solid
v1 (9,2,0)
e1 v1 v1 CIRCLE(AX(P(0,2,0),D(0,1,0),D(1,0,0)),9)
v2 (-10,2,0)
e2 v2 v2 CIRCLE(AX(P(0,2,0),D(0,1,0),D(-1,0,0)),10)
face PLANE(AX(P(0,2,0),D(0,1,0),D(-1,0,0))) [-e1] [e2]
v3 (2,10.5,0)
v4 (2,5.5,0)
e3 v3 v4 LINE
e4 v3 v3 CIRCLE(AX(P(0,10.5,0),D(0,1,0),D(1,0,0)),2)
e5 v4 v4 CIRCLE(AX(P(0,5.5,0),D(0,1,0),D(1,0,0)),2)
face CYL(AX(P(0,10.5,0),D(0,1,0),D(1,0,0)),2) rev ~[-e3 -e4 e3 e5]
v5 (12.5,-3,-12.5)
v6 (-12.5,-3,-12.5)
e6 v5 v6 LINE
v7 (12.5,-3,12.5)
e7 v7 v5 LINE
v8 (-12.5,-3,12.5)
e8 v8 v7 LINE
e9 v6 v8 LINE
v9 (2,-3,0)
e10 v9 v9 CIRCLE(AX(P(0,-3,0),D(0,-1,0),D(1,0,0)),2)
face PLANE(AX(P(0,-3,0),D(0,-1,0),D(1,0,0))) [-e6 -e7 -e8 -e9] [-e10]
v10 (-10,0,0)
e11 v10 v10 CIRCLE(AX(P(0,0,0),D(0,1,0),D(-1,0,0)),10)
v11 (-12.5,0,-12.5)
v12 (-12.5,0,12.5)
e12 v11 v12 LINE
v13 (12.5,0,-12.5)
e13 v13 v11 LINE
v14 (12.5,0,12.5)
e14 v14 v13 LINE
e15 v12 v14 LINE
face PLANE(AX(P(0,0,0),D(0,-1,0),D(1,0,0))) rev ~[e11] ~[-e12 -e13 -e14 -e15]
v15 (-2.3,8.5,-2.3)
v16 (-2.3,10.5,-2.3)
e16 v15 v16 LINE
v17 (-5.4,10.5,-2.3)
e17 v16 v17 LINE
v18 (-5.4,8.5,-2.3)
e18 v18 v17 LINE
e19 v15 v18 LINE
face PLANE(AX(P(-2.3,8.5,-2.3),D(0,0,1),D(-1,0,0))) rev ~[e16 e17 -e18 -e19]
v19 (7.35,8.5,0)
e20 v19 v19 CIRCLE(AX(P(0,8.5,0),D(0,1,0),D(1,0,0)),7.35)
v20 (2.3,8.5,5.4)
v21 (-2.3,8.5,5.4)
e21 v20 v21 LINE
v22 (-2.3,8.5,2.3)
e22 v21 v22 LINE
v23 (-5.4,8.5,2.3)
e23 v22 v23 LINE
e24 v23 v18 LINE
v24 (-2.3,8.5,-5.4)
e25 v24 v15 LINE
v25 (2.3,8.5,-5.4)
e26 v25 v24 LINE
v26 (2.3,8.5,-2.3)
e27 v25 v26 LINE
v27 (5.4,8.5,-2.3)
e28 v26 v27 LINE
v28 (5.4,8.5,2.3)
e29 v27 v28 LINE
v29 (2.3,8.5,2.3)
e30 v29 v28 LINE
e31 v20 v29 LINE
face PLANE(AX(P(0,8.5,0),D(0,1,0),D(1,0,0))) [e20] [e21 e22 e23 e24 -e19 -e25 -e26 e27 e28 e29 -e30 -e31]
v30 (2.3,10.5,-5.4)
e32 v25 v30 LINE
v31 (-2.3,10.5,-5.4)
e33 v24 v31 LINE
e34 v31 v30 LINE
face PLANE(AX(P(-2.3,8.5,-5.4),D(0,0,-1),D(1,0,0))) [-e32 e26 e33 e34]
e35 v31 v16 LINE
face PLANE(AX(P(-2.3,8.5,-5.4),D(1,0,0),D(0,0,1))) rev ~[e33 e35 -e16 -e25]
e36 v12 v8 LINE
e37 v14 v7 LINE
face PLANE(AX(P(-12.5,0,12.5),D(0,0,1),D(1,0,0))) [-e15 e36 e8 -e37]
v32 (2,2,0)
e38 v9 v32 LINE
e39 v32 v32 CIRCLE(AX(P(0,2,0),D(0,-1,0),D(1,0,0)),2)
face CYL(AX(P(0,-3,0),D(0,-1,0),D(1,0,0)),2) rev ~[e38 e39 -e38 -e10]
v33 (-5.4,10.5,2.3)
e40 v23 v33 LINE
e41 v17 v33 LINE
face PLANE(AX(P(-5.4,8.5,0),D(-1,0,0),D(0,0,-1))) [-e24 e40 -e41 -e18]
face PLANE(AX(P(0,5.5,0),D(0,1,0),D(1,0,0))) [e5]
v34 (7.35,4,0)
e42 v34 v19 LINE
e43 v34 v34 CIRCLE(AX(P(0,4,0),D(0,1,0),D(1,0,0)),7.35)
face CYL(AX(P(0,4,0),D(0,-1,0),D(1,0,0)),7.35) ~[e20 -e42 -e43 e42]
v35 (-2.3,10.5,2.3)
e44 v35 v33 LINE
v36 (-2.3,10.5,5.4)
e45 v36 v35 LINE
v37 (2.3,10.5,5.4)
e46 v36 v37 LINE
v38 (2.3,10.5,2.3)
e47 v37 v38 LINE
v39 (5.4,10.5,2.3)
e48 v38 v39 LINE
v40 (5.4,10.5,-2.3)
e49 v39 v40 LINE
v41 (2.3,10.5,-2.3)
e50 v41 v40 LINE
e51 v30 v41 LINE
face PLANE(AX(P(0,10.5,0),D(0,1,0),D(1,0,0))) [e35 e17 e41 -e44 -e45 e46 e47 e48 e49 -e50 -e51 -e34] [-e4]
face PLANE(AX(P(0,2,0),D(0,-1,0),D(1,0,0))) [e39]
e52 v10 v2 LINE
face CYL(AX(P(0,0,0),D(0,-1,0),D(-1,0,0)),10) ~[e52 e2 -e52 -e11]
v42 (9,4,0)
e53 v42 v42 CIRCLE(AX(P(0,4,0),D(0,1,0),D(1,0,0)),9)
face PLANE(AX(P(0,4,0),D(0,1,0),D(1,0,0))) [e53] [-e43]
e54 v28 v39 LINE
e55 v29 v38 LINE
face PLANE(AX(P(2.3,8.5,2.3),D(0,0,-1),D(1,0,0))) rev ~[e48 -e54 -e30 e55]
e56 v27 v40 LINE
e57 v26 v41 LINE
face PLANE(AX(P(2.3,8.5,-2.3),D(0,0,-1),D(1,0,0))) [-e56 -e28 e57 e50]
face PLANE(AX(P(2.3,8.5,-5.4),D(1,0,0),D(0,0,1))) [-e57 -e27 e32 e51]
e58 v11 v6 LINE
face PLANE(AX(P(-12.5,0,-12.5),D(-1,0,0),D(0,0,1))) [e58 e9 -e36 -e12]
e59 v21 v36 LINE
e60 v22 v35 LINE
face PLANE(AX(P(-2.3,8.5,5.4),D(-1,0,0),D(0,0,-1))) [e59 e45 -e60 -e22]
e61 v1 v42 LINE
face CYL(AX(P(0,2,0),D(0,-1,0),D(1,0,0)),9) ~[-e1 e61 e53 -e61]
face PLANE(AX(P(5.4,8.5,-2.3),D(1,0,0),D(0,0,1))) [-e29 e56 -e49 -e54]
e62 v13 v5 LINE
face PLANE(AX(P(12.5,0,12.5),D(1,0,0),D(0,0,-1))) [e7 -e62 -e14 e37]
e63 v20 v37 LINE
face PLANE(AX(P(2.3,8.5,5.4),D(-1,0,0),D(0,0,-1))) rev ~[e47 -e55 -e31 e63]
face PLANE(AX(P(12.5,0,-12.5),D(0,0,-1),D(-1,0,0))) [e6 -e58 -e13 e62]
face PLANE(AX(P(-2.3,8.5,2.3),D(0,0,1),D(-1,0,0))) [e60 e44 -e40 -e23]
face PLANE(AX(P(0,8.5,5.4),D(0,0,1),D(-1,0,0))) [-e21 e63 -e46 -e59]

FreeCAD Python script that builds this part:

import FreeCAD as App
import Part
import Sketcher
from FreeCAD import Vector
Q = App.Units.Quantity

doc = App.newDocument("Part")
params = doc.addObject("Spreadsheet::Sheet", "Params")
for row, (alias, value) in enumerate([
    ("sketch1_diameter", "20 mm"),
    ("pad1_length", "2 mm"),
    ("sketch2_diameter", "18 mm"),
    ("pad2_length", "2 mm"),
    ("sketch3_diameter", "14.7 mm"),
    ("pad3_length", "4.5 mm"),
    ("sketch4_width", "3.1 mm"),
    ("sketch4_width2", "4.6 mm"),
    ("pad4_length", "2 mm"),
    ("sketch5_diameter", "4 mm"),
    ("pocket1_length", "5 mm"),
    ("sketch6_width", "25 mm"),
    ("pad5_length", "3 mm"),
    ("sketch7_diameter", "4 mm"),
    ("pocket2_length", "5 mm"),
], start=1):
    params.set(f"A{row}", alias)
    params.set(f"B{row}", "=" + value)
    params.setAlias(f"B{row}", alias)

body = doc.addObject("PartDesign::Body", "Body")

# Sketch on XZ plane
sketch1 = body.newObject("Sketcher::SketchObject", "Sketch")
sketch1.AttachmentSupport = (doc.getObject("XZ_Plane"), [""])
sketch1.MapMode = "FlatFace"
sketch1.addGeometry(Part.Circle(Vector(0, 0, 0), Vector(0, 0, 1), 10), False)
sketch1.addConstraint(Sketcher.Constraint("Coincident", 0, 3, -1, 1))
sketch1.addConstraint(Sketcher.Constraint("Diameter", 0, Q("20 mm")))
sketch1.setExpression("Constraints[1]", "Params.sketch1_diameter")
pad1 = body.newObject("PartDesign::Pad", "Pad")
pad1.Profile = sketch1
pad1.setExpression("Length", "Params.pad1_length")
pad1.Reversed = True

# Sketch on XZ plane
sketch2 = body.newObject("Sketcher::SketchObject", "Sketch001")
sketch2.AttachmentSupport = (doc.getObject("XZ_Plane"), [""])
sketch2.MapMode = "FlatFace"
sketch2.AttachmentOffset = App.Placement(Vector(0, 0, -2), App.Rotation())
sketch2.addGeometry(Part.Circle(Vector(0, 0, 0), Vector(0, 0, 1), 9), False)
sketch2.addConstraint(Sketcher.Constraint("Coincident", 0, 3, -1, 1))
sketch2.addConstraint(Sketcher.Constraint("Diameter", 0, Q("18 mm")))
sketch2.setExpression("Constraints[1]", "Params.sketch2_diameter")
pad2 = body.newObject("PartDesign::Pad", "Pad001")
pad2.Profile = sketch2
pad2.setExpression("Length", "Params.pad2_length")
pad2.Reversed = True

# Sketch on XZ plane
sketch3 = body.newObject("Sketcher::SketchObject", "Sketch002")
sketch3.AttachmentSupport = (doc.getObject("XZ_Plane"), [""])
sketch3.MapMode = "FlatFace"
sketch3.AttachmentOffset = App.Placement(Vector(0, 0, -4), App.Rotation())
sketch3.addGeometry(Part.Circle(Vector(0, 0, 0), Vector(0, 0, 1), 7), False)
sketch3.addConstraint(Sketcher.Constraint("Coincident", 0, 3, -1, 1))
sketch3.addConstraint(Sketcher.Constraint("Diameter", 0, Q("14.7 mm")))
sketch3.setExpression("Constraints[1]", "Params.sketch3_diameter")
pad3 = body.newObject("PartDesign::Pad", "Pad002")
pad3.Profile = sketch3
pad3.setExpression("Length", "Params.pad3_length")
pad3.Reversed = True

# Sketch on XZ plane
sketch4 = body.newObject("Sketcher::SketchObject", "Sketch003")
sketch4.AttachmentSupport = (doc.getObject("XZ_Plane"), [""])
sketch4.MapMode = "FlatFace"
sketch4.AttachmentOffset = App.Placement(Vector(0, 0, -8.5), App.Rotation())
sketch4.addGeometry(Part.LineSegment(Vector(-2.3, -5.4, 0), Vector(-2.3, -2.3, 0)), False)
sketch4.addGeometry(Part.LineSegment(Vector(-2.3, -2.3, 0), Vector(-5.4, -2.3, 0)), False)
sketch4.addGeometry(Part.LineSegment(Vector(-5.4, -2.3, 0), Vector(-5.4, 2.3, 0)), False)
sketch4.addGeometry(Part.LineSegment(Vector(-5.4, 2.3, 0), Vector(-2.3, 2.3, 0)), False)
sketch4.addGeometry(Part.LineSegment(Vector(-2.3, 2.3, 0), Vector(-2.3, 5.4, 0)), False)
sketch4.addGeometry(Part.LineSegment(Vector(-2.3, 5.4, 0), Vector(2.3, 5.4, 0)), False)
sketch4.addGeometry(Part.LineSegment(Vector(2.3, 5.4, 0), Vector(2.3, 2.3, 0)), False)
sketch4.addGeometry(Part.LineSegment(Vector(2.3, 2.3, 0), Vector(5.4, 2.3, 0)), False)
sketch4.addGeometry(Part.LineSegment(Vector(5.4, 2.3, 0), Vector(5.4, -2.3, 0)), False)
sketch4.addGeometry(Part.LineSegment(Vector(5.4, -2.3, 0), Vector(2.3, -2.3, 0)), False)
sketch4.addGeometry(Part.LineSegment(Vector(2.3, -2.3, 0), Vector(2.3, -5.4, 0)), False)
sketch4.addGeometry(Part.LineSegment(Vector(2.3, -5.4, 0), Vector(-2.3, -5.4, 0)), False)
sketch4.addConstraint(Sketcher.Constraint("Coincident", 0, 2, 1, 1))
sketch4.addConstraint(Sketcher.Constraint("Coincident", 1, 2, 2, 1))
sketch4.addConstraint(Sketcher.Constraint("Coincident", 2, 2, 3, 1))
sketch4.addConstraint(Sketcher.Constraint("Coincident", 3, 2, 4, 1))
sketch4.addConstraint(Sketcher.Constraint("Coincident", 4, 2, 5, 1))
sketch4.addConstraint(Sketcher.Constraint("Coincident", 5, 2, 6, 1))
sketch4.addConstraint(Sketcher.Constraint("Coincident", 6, 2, 7, 1))
sketch4.addConstraint(Sketcher.Constraint("Coincident", 7, 2, 8, 1))
sketch4.addConstraint(Sketcher.Constraint("Coincident", 8, 2, 9, 1))
sketch4.addConstraint(Sketcher.Constraint("Coincident", 9, 2, 10, 1))
sketch4.addConstraint(Sketcher.Constraint("Coincident", 10, 2, 11, 1))
sketch4.addConstraint(Sketcher.Constraint("Coincident", 11, 2, 0, 1))
sketch4.addConstraint(Sketcher.Constraint("Vertical", 0))
sketch4.addConstraint(Sketcher.Constraint("Horizontal", 1))
sketch4.addConstraint(Sketcher.Constraint("Vertical", 2))
sketch4.addConstraint(Sketcher.Constraint("Horizontal", 3))
sketch4.addConstraint(Sketcher.Constraint("Vertical", 4))
sketch4.addConstraint(Sketcher.Constraint("Horizontal", 5))
sketch4.addConstraint(Sketcher.Constraint("Vertical", 6))
sketch4.addConstraint(Sketcher.Constraint("Horizontal", 7))
sketch4.addConstraint(Sketcher.Constraint("Vertical", 8))
sketch4.addConstraint(Sketcher.Constraint("Horizontal", 9))
sketch4.addConstraint(Sketcher.Constraint("Vertical", 10))
sketch4.addConstraint(Sketcher.Constraint("Horizontal", 11))
sketch4.addConstraint(Sketcher.Constraint("Symmetric", 0, 2, 6, 2, -1, 1))
sketch4.addConstraint(Sketcher.Constraint("Symmetric", 2, 2, 8, 2, -1, 1))
sketch4.addConstraint(Sketcher.Constraint("Symmetric", 4, 2, 10, 2, -1, 1))
sketch4.addConstraint(Sketcher.Constraint("Symmetric", 3, 2, 6, 2, -2))
sketch4.addConstraint(Sketcher.Constraint("Equal", 9, 0))
sketch4.addConstraint(Sketcher.Constraint("Equal", 11, 2))
sketch4.addConstraint(Sketcher.Constraint("DistanceX", 1, 2, 1, 1, Q("3.1 mm")))
sketch4.addConstraint(Sketcher.Constraint("DistanceX", 5, 1, 5, 2, Q("4.6 mm")))
sketch4.setExpression("Constraints[30]", "Params.sketch4_width")
sketch4.setExpression("Constraints[31]", "Params.sketch4_width2")
pad4 = body.newObject("PartDesign::Pad", "Pad003")
pad4.Profile = sketch4
pad4.setExpression("Length", "Params.pad4_length")
pad4.Reversed = True

# Sketch on XZ plane
sketch5 = body.newObject("Sketcher::SketchObject", "Sketch004")
sketch5.AttachmentSupport = (doc.getObject("XZ_Plane"), [""])
sketch5.MapMode = "FlatFace"
sketch5.AttachmentOffset = App.Placement(Vector(0, 0, -10.5), App.Rotation())
sketch5.addGeometry(Part.Circle(Vector(0, 0, 0), Vector(0, 0, 1), 2), False)
sketch5.addConstraint(Sketcher.Constraint("Coincident", 0, 3, -1, 1))
sketch5.addConstraint(Sketcher.Constraint("Diameter", 0, Q("4 mm")))
sketch5.setExpression("Constraints[1]", "Params.sketch5_diameter")
pocket1 = body.newObject("PartDesign::Pocket", "Pocket")
pocket1.Profile = sketch5
pocket1.setExpression("Length", "Params.pocket1_length")
pocket1.Reversed = True

# Sketch on XZ plane
sketch6 = body.newObject("Sketcher::SketchObject", "Sketch005")
sketch6.AttachmentSupport = (doc.getObject("XZ_Plane"), [""])
sketch6.MapMode = "FlatFace"
sketch6.addGeometry(Part.LineSegment(Vector(12, 12, 0), Vector(-12, 12, 0)), False)
sketch6.addGeometry(Part.LineSegment(Vector(-12, 12, 0), Vector(-12, -12, 0)), False)
sketch6.addGeometry(Part.LineSegment(Vector(-12, -12, 0), Vector(12, -12, 0)), False)
sketch6.addGeometry(Part.LineSegment(Vector(12, -12, 0), Vector(12, 12, 0)), False)
sketch6.addConstraint(Sketcher.Constraint("Coincident", 0, 2, 1, 1))
sketch6.addConstraint(Sketcher.Constraint("Coincident", 1, 2, 2, 1))
sketch6.addConstraint(Sketcher.Constraint("Coincident", 2, 2, 3, 1))
sketch6.addConstraint(Sketcher.Constraint("Coincident", 3, 2, 0, 1))
sketch6.addConstraint(Sketcher.Constraint("Horizontal", 0))
sketch6.addConstraint(Sketcher.Constraint("Vertical", 1))
sketch6.addConstraint(Sketcher.Constraint("Horizontal", 2))
sketch6.addConstraint(Sketcher.Constraint("Vertical", 3))
sketch6.addConstraint(Sketcher.Constraint("Symmetric", 0, 2, 2, 2, -1, 1))
sketch6.addConstraint(Sketcher.Constraint("Equal", 2, 1))
sketch6.addConstraint(Sketcher.Constraint("DistanceX", 0, 2, 0, 1, Q("25 mm")))
sketch6.setExpression("Constraints[10]", "Params.sketch6_width")
pad5 = body.newObject("PartDesign::Pad", "Pad004")
pad5.Profile = sketch6
pad5.setExpression("Length", "Params.pad5_length")

# Sketch on XZ plane
sketch7 = body.newObject("Sketcher::SketchObject", "Sketch006")
sketch7.AttachmentSupport = (doc.getObject("XZ_Plane"), [""])
sketch7.MapMode = "FlatFace"
sketch7.AttachmentOffset = App.Placement(Vector(0, 0, 3), App.Rotation())
sketch7.addGeometry(Part.Circle(Vector(0, 0, 0), Vector(0, 0, 1), 2), False)
sketch7.addConstraint(Sketcher.Constraint("Coincident", 0, 3, -1, 1))
sketch7.addConstraint(Sketcher.Constraint("Diameter", 0, Q("4 mm")))
sketch7.setExpression("Constraints[1]", "Params.sketch7_diameter")
pocket2 = body.newObject("PartDesign::Pocket", "Pocket001")
pocket2.Profile = sketch7
pocket2.setExpression("Length", "Params.pocket2_length")

doc.recompute()
